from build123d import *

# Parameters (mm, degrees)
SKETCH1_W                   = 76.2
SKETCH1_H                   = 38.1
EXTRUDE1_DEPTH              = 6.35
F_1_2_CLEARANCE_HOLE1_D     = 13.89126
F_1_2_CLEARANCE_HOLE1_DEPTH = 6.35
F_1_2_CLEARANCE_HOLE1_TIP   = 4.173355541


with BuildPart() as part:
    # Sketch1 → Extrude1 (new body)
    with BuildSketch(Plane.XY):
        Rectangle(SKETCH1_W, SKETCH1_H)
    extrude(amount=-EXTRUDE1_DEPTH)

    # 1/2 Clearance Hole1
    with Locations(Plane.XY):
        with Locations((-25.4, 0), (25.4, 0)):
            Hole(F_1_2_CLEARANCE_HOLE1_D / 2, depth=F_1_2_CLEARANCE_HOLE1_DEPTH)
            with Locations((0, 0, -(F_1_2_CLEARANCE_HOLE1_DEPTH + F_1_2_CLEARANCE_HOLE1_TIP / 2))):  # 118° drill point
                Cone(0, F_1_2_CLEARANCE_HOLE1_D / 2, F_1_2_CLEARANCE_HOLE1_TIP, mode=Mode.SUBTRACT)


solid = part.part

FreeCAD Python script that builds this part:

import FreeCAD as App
import Part
import Sketcher
from FreeCAD import Vector
Q = App.Units.Quantity

doc = App.newDocument("Part")
params = doc.addObject("Spreadsheet::Sheet", "Params")
for row, (alias, value) in enumerate([
    ("sketch1_width", "3 in"),
    ("sketch1_height", "1.5 in"),
    ("pad1_length", "0.25 in"),
    ("hole_diameter", "0.5469 in"),
    ("hole_depth", "0.25 in"),
], start=1):
    params.set(f"A{row}", alias)
    params.set(f"B{row}", "=" + value)
    params.setAlias(f"B{row}", alias)

body = doc.addObject("PartDesign::Body", "Body")

sketch1 = body.newObject("Sketcher::SketchObject", "Sketch")
sketch1.AttachmentSupport = (doc.getObject("XY_Plane"), [""])
sketch1.MapMode = "FlatFace"
sketch1.addGeometry([
    Part.LineSegment(Vector(-38, 19, 0), Vector(-38, -19, 0)),
    Part.LineSegment(Vector(-38, -19, 0), Vector(38, -19, 0)),
    Part.LineSegment(Vector(38, -19, 0), Vector(38, 19, 0)),
    Part.LineSegment(Vector(38, 19, 0), Vector(-38, 19, 0)),
], False)
sketch1.addConstraint([
    Sketcher.Constraint("Coincident", 0, 2, 1, 1),
    Sketcher.Constraint("Coincident", 1, 2, 2, 1),
    Sketcher.Constraint("Coincident", 2, 2, 3, 1),
    Sketcher.Constraint("Coincident", 3, 2, 0, 1),
    Sketcher.Constraint("Vertical", 0),
    Sketcher.Constraint("Horizontal", 1),
    Sketcher.Constraint("Vertical", 2),
    Sketcher.Constraint("Horizontal", 3),
    Sketcher.Constraint("Symmetric", 0, 2, 2, 2, -1, 1),
    Sketcher.Constraint("DistanceX", 1, 1, 1, 2, Q("3 in")),
    Sketcher.Constraint("DistanceY", 0, 2, 0, 1, Q("1.5 in")),
])
sketch1.setExpression("Constraints[9]", "Params.sketch1_width")
sketch1.setExpression("Constraints[10]", "Params.sketch1_height")
pad1 = body.newObject("PartDesign::Pad", "Pad")
pad1.Profile = sketch1
pad1.setExpression("Length", "Params.pad1_length")
pad1.Reversed = True

sketch2 = body.newObject("Sketcher::SketchObject", "Sketch001")
sketch2.AttachmentSupport = (doc.getObject("XY_Plane"), [""])
sketch2.MapMode = "FlatFace"
sketch2.addGeometry([
    Part.Circle(Vector(-25, 0, 0), Vector(0, 0, 1), 7),
    Part.Circle(Vector(25, 0, 0), Vector(0, 0, 1), 7),
], False)
sketch2.addConstraint([
    Sketcher.Constraint("Equal", 0, 1),
    Sketcher.Constraint("Symmetric", 0, 3, 1, 3, -1, 1),
    Sketcher.Constraint("PointOnObject", 0, 3, -1),
    Sketcher.Constraint("DistanceX", 0, 3, -1, 1, Q("1 in")),
    Sketcher.Constraint("Diameter", 0, Q("0.5469 in")),
])
doc.recompute()
hole = body.newObject("PartDesign::Hole", "Hole")
hole.Profile = sketch2
hole.ThreadType = "None"
hole.setExpression("Diameter", "Params.hole_diameter")
hole.DepthType = "Dimension"
hole.setExpression("Depth", "Params.hole_depth")
hole.DrillPoint = "Angled"
hole.DrillPointAngle = 118

doc.recompute()
